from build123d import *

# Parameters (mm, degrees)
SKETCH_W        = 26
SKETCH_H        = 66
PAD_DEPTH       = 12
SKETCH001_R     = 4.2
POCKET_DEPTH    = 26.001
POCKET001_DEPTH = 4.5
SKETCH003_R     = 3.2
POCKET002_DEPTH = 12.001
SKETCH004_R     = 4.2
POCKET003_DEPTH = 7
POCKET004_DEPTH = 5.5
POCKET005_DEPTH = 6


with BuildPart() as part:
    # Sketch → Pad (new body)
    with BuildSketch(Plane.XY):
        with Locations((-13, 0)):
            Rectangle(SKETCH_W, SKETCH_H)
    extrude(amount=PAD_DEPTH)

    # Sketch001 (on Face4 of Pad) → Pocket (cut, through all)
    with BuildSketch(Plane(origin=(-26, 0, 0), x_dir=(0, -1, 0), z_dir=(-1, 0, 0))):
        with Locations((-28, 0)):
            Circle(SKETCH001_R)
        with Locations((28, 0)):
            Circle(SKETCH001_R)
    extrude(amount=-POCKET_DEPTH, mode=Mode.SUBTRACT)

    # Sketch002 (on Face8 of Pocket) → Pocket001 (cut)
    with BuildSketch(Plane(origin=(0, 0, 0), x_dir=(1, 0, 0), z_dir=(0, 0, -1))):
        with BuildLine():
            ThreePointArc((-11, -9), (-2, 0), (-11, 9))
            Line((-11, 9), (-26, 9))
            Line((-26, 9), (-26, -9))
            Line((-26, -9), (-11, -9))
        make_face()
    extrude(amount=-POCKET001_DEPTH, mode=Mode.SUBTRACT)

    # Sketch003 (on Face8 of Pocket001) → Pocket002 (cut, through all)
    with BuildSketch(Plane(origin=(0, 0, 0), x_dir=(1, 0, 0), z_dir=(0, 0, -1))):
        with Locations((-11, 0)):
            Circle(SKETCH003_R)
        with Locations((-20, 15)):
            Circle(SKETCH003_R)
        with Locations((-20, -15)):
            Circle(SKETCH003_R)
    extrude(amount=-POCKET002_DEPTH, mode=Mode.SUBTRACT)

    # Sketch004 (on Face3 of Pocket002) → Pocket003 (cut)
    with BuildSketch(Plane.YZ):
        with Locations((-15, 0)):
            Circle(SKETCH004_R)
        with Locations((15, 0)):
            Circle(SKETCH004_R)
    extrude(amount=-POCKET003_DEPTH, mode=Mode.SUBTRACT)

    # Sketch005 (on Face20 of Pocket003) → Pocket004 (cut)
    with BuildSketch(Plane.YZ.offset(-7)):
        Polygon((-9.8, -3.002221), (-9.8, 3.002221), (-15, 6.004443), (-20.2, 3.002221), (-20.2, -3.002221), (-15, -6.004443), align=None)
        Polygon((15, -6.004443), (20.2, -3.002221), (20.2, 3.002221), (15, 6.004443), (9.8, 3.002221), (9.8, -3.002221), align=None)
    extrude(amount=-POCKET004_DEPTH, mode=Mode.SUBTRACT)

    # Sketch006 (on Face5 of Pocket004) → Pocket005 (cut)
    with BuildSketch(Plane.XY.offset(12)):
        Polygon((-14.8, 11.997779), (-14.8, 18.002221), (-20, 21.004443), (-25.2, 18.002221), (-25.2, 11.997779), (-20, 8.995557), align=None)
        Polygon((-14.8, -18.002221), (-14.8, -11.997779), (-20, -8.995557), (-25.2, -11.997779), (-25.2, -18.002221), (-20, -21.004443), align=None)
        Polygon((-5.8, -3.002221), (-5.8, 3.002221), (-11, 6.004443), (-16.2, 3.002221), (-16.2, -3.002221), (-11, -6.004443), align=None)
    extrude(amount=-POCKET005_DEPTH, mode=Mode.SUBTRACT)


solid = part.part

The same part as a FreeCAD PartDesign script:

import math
import FreeCAD as App
import Part
import Sketcher

V = App.Vector
Q = App.Units.Quantity


def add_polygon(sketch, points):
    """Adds a closed chain of lines whose ends are joined by coincident constraints."""
    first, n = sketch.GeometryCount, len(points)
    for a, b in zip(points, points[1:] + points[:1]):
        sketch.addGeometry(Part.LineSegment(App.Vector(*a, 0), App.Vector(*b, 0)), False)
    for i in range(n):
        sketch.addConstraint(Sketcher.Constraint("Coincident", first + i, 2, first + (i + 1) % n, 1))

doc = App.newDocument("Part")
body = doc.addObject("PartDesign::Body", "Body")

sketch1 = body.newObject("Sketcher::SketchObject", "Sketch")
sketch1.AttachmentSupport = (doc.getObject("XY_Plane"), [""])
sketch1.MapMode = "FlatFace"
add_polygon(sketch1, [(-26, 33), (-26, -33), (0, -33), (0, 33)])
sketch1.addConstraint(Sketcher.Constraint("Vertical", 0))
sketch1.addConstraint(Sketcher.Constraint("Horizontal", 1))
sketch1.addConstraint(Sketcher.Constraint("Vertical", 2))
sketch1.addConstraint(Sketcher.Constraint("Horizontal", 3))
sketch1.addConstraint(Sketcher.Constraint("Symmetric", 1, 2, 2, 2, -1, 1))
sketch1.addConstraint(Sketcher.Constraint("DistanceX", 1, 1, 1, 2, Q("26 mm")))
sketch1.addConstraint(Sketcher.Constraint("DistanceY", 0, 2, 0, 1, Q("66 mm")))
pad1 = body.newObject("PartDesign::Pad", "Pad")
pad1.Profile = sketch1
pad1.Length = 12

sketch2 = body.newObject("Sketcher::SketchObject", "Sketch001")
sketch2.AttachmentSupport = (doc.getObject("YZ_Plane"), [""])
sketch2.MapMode = "FlatFace"
sketch2.AttachmentOffset = App.Placement(V(0, 0, -26), App.Rotation())
sketch2.addGeometry(Part.Circle(V(28, 0, 0), V(0, 0, 1), 4.2), False)
sketch2.addGeometry(Part.Circle(V(-28, 0, 0), V(0, 0, 1), 4.2), False)
sketch2.addConstraint(Sketcher.Constraint("Equal", 0, 1))
sketch2.addConstraint(Sketcher.Constraint("Symmetric", 0, 3, 1, 3, -1, 1))
sketch2.addConstraint(Sketcher.Constraint("PointOnObject", 0, 3, -1))
sketch2.addConstraint(Sketcher.Constraint("Diameter", 0, Q("8.4 mm")))
sketch2.addConstraint(Sketcher.Constraint("DistanceX", -1, 1, 0, 3, Q("28 mm")))
pocket1 = body.newObject("PartDesign::Pocket", "Pocket")
pocket1.Profile = sketch2
pocket1.Type = "ThroughAll"
pocket1.Reversed = True

sketch3 = body.newObject("Sketcher::SketchObject", "Sketch002")
sketch3.AttachmentSupport = (doc.getObject("XY_Plane"), [""])
sketch3.MapMode = "FlatFace"
sketch3.addGeometry(Part.ArcOfCircle(Part.Circle(V(-11, 0, 0), V(0, 0, 1), 9), math.radians(-90), math.radians(90)), False)
sketch3.addGeometry(Part.LineSegment(V(-11, -9, 0), V(-26, -9, 0)), False)
sketch3.addGeometry(Part.LineSegment(V(-26, -9, 0), V(-26, 9, 0)), False)
sketch3.addGeometry(Part.LineSegment(V(-26, 9, 0), V(-11, 9, 0)), False)
sketch3.addConstraint(Sketcher.Constraint("Tangent", 0, 1, 1, 1))
sketch3.addConstraint(Sketcher.Constraint("Coincident", 1, 2, 2, 1))
sketch3.addConstraint(Sketcher.Constraint("Coincident", 2, 2, 3, 1))
sketch3.addConstraint(Sketcher.Constraint("Tangent", 3, 2, 0, 2))
sketch3.addConstraint(Sketcher.Constraint("Horizontal", 1))
sketch3.addConstraint(Sketcher.Constraint("Vertical", 2))
sketch3.addConstraint(Sketcher.Constraint("Horizontal", 3))
sketch3.addConstraint(Sketcher.Constraint("PointOnObject", 0, 3, -1))
sketch3.addConstraint(Sketcher.Constraint("Radius", 0, Q("9 mm")))
sketch3.addConstraint(Sketcher.Constraint("DistanceX", 1, 2, 1, 1, Q("15 mm")))
sketch3.addConstraint(Sketcher.Constraint("DistanceX", 0, 3, -1, 1, Q("11 mm")))
pocket2 = body.newObject("PartDesign::Pocket", "Pocket001")
pocket2.Profile = sketch3
pocket2.Length = 4.5
pocket2.Reversed = True

sketch4 = body.newObject("Sketcher::SketchObject", "Sketch003")
sketch4.AttachmentSupport = (doc.getObject("XY_Plane"), [""])
sketch4.MapMode = "FlatFace"
sketch4.addGeometry(Part.Circle(V(-11, 0, 0), V(0, 0, 1), 3.2), False)
sketch4.addGeometry(Part.Circle(V(-20, -15, 0), V(0, 0, 1), 3.2), False)
sketch4.addGeometry(Part.Circle(V(-20, 15, 0), V(0, 0, 1), 3.2), False)
sketch4.addConstraint(Sketcher.Constraint("Equal", 0, 1))
sketch4.addConstraint(Sketcher.Constraint("Equal", 1, 2))
sketch4.addConstraint(Sketcher.Constraint("Symmetric", 1, 3, 2, 3, -1))
sketch4.addConstraint(Sketcher.Constraint("PointOnObject", 0, 3, -1))
sketch4.addConstraint(Sketcher.Constraint("Diameter", 0, Q("6.4 mm")))
sketch4.addConstraint(Sketcher.Constraint("DistanceX", 0, 3, -1, 1, Q("11 mm")))
sketch4.addConstraint(Sketcher.Constraint("DistanceX", 1, 3, -1, 1, Q("20 mm")))
sketch4.addConstraint(Sketcher.Constraint("DistanceY", 1, 3, -1, 1, Q("15 mm")))
pocket3 = body.newObject("PartDesign::Pocket", "Pocket002")
pocket3.Profile = sketch4
pocket3.Type = "ThroughAll"
pocket3.Reversed = True

sketch5 = body.newObject("Sketcher::SketchObject", "Sketch004")
sketch5.AttachmentSupport = (doc.getObject("YZ_Plane"), [""])
sketch5.MapMode = "FlatFace"
sketch5.addGeometry(Part.Circle(V(-15, 0, 0), V(0, 0, 1), 4.2), False)
sketch5.addGeometry(Part.Circle(V(15, 0, 0), V(0, 0, 1), 4.2), False)
sketch5.addConstraint(Sketcher.Constraint("Equal", 0, 1))
sketch5.addConstraint(Sketcher.Constraint("Symmetric", 0, 3, 1, 3, -1, 1))
sketch5.addConstraint(Sketcher.Constraint("PointOnObject", 0, 3, -1))
sketch5.addConstraint(Sketcher.Constraint("Diameter", 0, Q("8.4 mm")))
sketch5.addConstraint(Sketcher.Constraint("DistanceX", 0, 3, -1, 1, Q("15 mm")))
pocket4 = body.newObject("PartDesign::Pocket", "Pocket003")
pocket4.Profile = sketch5
pocket4.Length = 7

sketch6 = body.newObject("Sketcher::SketchObject", "Sketch005")
sketch6.AttachmentSupport = (doc.getObject("YZ_Plane"), [""])
sketch6.MapMode = "FlatFace"
sketch6.AttachmentOffset = App.Placement(V(0, 0, -7), App.Rotation())
add_polygon(sketch6, [(-10, -3), (-10, 3), (-15, 6), (-20, 3), (-20, -3), (-15, -6)])
add_polygon(sketch6, [(15, -6), (20, -3), (20, 3), (15, 6), (10, 3), (10, -3)])
sketch6.addConstraint(Sketcher.Constraint("Vertical", 0))
sketch6.addConstraint(Sketcher.Constraint("Vertical", 3))
sketch6.addConstraint(Sketcher.Constraint("Vertical", 7))
sketch6.addConstraint(Sketcher.Constraint("Vertical", 10))
sketch6.addConstraint(Sketcher.Constraint("Symmetric", 2, 2, 6, 2, -1, 1))
sketch6.addConstraint(Sketcher.Constraint("Symmetric", 4, 2, 8, 2, -1, 1))
sketch6.addConstraint(Sketcher.Constraint("Symmetric", 5, 2, 9, 2, -1, 1))
sketch6.addConstraint(Sketcher.Constraint("Symmetric", 1, 2, 11, 2, -1, 1))
sketch6.addConstraint(Sketcher.Constraint("Symmetric", 1, 2, 8, 2, -2))
sketch6.addConstraint(Sketcher.Constraint("Parallel", 1, 4))
sketch6.addConstraint(Sketcher.Constraint("Parallel", 2, 5))
sketch6.addConstraint(Sketcher.Constraint("Parallel", 4, 8))
sketch6.addConstraint(Sketcher.Constraint("Parallel", 8, 11))
sketch6.addConstraint(Sketcher.Constraint("Horizontal", 0, 2, 2, 2))
sketch6.addConstraint(Sketcher.Constraint("Horizontal", 3, 2, 5, 2))
sketch6.addConstraint(Sketcher.Constraint("Angle", 1, Q("149.999995 deg")))
sketch6.addConstraint(Sketcher.Constraint("DistanceX", 1, 2, -1, 1, Q("15 mm")))
sketch6.addConstraint(Sketcher.Constraint("DistanceX", 0, 2, -1, 1, Q("9.8 mm")))
sketch6.addConstraint(Sketcher.Constraint("DistanceY", 0, 1, 0, 2, Q("6.004442 mm")))
pocket5 = body.newObject("PartDesign::Pocket", "Pocket004")
pocket5.Profile = sketch6
pocket5.Length = 5.5

sketch7 = body.newObject("Sketcher::SketchObject", "Sketch006")
sketch7.AttachmentSupport = (doc.getObject("XY_Plane"), [""])
sketch7.MapMode = "FlatFace"
sketch7.AttachmentOffset = App.Placement(V(0, 0, 12), App.Rotation())
add_polygon(sketch7, [(-15, 12), (-15, 18), (-20, 21), (-25, 18), (-25, 12), (-20, 9)])
add_polygon(sketch7, [(-15, -18), (-15, -12), (-20, -9), (-25, -12), (-25, -18), (-20, -21)])
add_polygon(sketch7, [(-6, -3), (-6, 3), (-11, 6), (-16, 3), (-16, -3), (-11, -6)])
sketch7.addConstraint(Sketcher.Constraint("Vertical", 0))
sketch7.addConstraint(Sketcher.Constraint("Vertical", 3))
sketch7.addConstraint(Sketcher.Constraint("Vertical", 6))
sketch7.addConstraint(Sketcher.Constraint("Vertical", 9))
sketch7.addConstraint(Sketcher.Constraint("Vertical", 12))
sketch7.addConstraint(Sketcher.Constraint("Vertical", 15))
sketch7.addConstraint(Sketcher.Constraint("Symmetric", 5, 2, 6, 2, -1))
sketch7.addConstraint(Sketcher.Constraint("Symmetric", 4, 2, 7, 2, -1))
sketch7.addConstraint(Sketcher.Constraint("Symmetric", 3, 2, 8, 2, -1))
sketch7.addConstraint(Sketcher.Constraint("Symmetric", 1, 2, 10, 2, -1))
sketch7.addConstraint(Sketcher.Constraint("Symmetric", 13, 2, 16, 2, -1))
sketch7.addConstraint(Sketcher.Constraint("Parallel", 1, 4))
sketch7.addConstraint(Sketcher.Constraint("Parallel", 2, 5))
sketch7.addConstraint(Sketcher.Constraint("Parallel", 4, 7))
sketch7.addConstraint(Sketcher.Constraint("Parallel", 7, 10))
sketch7.addConstraint(Sketcher.Constraint("Parallel", 8, 11))
sketch7.addConstraint(Sketcher.Constraint("Parallel", 10, 13))
sketch7.addConstraint(Sketcher.Constraint("Parallel", 11, 14))
sketch7.addConstraint(Sketcher.Constraint("Parallel", 13, 16))
sketch7.addConstraint(Sketcher.Constraint("Parallel", 14, 17))
sketch7.addConstraint(Sketcher.Constraint("Horizontal", 0, 2, 2, 2))
sketch7.addConstraint(Sketcher.Constraint("Horizontal", 3, 2, 5, 2))
sketch7.addConstraint(Sketcher.Constraint("Horizontal", 12, 2, 14, 2))
sketch7.addConstraint(Sketcher.Constraint("Equal", 9, 12))
sketch7.addConstraint(Sketcher.Constraint("Equal", 11, 13))
sketch7.addConstraint(Sketcher.Constraint("Angle", 1, Q("149.999995 deg")))
sketch7.addConstraint(Sketcher.Constraint("DistanceX", 1, 2, -1, 1, Q("20 mm")))
sketch7.addConstraint(Sketcher.Constraint("DistanceX", 13, 2, -1, 1, Q("11 mm")))
sketch7.addConstraint(Sketcher.Constraint("DistanceY", 6, 2, 0, 2, Q("30 mm")))
sketch7.addConstraint(Sketcher.Constraint("DistanceX", 0, 2, -1, 1, Q("14.8 mm")))
sketch7.addConstraint(Sketcher.Constraint("DistanceY", 0, 1, 0, 2, Q("6.004442 mm")))
pocket6 = body.newObject("PartDesign::Pocket", "Pocket005")
pocket6.Profile = sketch7
pocket6.Length = 6

doc.recompute()
